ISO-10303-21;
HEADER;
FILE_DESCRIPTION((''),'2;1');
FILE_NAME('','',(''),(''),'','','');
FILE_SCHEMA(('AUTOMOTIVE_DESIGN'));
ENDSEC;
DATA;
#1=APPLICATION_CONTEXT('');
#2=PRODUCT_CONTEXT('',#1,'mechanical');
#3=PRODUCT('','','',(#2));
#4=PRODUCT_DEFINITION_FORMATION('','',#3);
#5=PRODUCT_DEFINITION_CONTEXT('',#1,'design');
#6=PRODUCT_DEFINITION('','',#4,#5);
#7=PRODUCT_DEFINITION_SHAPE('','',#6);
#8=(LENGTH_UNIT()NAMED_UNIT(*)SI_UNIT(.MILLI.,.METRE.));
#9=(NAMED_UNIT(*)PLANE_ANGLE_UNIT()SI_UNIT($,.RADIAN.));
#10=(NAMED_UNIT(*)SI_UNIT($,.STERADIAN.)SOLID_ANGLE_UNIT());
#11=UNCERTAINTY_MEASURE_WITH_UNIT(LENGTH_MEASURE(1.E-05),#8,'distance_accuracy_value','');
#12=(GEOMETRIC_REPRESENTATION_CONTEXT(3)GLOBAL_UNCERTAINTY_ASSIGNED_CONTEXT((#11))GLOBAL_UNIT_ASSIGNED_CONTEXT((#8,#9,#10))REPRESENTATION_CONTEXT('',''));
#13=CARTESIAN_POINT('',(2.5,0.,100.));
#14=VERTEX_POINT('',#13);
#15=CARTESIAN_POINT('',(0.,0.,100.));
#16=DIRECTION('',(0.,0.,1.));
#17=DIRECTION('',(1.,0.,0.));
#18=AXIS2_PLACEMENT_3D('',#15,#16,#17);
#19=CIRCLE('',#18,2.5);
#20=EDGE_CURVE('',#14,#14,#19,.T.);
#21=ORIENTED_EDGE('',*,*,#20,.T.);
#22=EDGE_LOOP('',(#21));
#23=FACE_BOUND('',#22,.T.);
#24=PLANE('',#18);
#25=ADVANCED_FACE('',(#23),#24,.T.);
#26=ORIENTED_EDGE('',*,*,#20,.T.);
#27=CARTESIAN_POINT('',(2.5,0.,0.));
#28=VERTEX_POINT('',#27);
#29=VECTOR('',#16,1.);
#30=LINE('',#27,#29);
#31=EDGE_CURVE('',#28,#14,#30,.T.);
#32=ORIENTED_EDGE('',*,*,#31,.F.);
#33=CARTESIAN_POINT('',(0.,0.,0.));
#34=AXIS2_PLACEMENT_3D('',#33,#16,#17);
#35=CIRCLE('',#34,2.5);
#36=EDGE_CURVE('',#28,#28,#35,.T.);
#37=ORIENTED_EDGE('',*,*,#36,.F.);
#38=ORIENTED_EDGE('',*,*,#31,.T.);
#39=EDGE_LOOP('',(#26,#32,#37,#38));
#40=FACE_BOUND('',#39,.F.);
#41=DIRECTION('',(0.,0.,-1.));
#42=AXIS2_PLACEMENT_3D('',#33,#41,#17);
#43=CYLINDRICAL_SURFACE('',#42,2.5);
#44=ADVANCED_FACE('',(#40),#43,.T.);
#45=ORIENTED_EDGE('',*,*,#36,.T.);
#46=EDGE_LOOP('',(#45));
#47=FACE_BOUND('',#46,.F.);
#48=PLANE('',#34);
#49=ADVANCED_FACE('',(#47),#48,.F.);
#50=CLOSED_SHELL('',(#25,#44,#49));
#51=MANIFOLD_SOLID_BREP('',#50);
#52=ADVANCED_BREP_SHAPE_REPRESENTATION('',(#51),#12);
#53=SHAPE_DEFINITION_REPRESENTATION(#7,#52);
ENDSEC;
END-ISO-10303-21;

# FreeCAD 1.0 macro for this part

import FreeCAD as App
import Part
import Sketcher

doc = App.newDocument("Part")
body = doc.addObject("PartDesign::Body", "Body")

sketch1 = body.newObject("Sketcher::SketchObject", "Sketch")
sketch1.AttachmentSupport = (doc.getObject("XY_Plane"), [""])
sketch1.MapMode = "FlatFace"
sketch1.addGeometry(Part.Circle(App.Vector(0, 0, 0), App.Vector(0, 0, 1), 2.5), False)
sketch1.addConstraint([
    Sketcher.Constraint("Coincident", 0, 3, -1, 1),
    Sketcher.Constraint("Diameter", 0, 5.0),
])
pad1 = body.newObject("PartDesign::Pad", "Pad")
pad1.Profile = sketch1
pad1.Length = 100

doc.recompute()
